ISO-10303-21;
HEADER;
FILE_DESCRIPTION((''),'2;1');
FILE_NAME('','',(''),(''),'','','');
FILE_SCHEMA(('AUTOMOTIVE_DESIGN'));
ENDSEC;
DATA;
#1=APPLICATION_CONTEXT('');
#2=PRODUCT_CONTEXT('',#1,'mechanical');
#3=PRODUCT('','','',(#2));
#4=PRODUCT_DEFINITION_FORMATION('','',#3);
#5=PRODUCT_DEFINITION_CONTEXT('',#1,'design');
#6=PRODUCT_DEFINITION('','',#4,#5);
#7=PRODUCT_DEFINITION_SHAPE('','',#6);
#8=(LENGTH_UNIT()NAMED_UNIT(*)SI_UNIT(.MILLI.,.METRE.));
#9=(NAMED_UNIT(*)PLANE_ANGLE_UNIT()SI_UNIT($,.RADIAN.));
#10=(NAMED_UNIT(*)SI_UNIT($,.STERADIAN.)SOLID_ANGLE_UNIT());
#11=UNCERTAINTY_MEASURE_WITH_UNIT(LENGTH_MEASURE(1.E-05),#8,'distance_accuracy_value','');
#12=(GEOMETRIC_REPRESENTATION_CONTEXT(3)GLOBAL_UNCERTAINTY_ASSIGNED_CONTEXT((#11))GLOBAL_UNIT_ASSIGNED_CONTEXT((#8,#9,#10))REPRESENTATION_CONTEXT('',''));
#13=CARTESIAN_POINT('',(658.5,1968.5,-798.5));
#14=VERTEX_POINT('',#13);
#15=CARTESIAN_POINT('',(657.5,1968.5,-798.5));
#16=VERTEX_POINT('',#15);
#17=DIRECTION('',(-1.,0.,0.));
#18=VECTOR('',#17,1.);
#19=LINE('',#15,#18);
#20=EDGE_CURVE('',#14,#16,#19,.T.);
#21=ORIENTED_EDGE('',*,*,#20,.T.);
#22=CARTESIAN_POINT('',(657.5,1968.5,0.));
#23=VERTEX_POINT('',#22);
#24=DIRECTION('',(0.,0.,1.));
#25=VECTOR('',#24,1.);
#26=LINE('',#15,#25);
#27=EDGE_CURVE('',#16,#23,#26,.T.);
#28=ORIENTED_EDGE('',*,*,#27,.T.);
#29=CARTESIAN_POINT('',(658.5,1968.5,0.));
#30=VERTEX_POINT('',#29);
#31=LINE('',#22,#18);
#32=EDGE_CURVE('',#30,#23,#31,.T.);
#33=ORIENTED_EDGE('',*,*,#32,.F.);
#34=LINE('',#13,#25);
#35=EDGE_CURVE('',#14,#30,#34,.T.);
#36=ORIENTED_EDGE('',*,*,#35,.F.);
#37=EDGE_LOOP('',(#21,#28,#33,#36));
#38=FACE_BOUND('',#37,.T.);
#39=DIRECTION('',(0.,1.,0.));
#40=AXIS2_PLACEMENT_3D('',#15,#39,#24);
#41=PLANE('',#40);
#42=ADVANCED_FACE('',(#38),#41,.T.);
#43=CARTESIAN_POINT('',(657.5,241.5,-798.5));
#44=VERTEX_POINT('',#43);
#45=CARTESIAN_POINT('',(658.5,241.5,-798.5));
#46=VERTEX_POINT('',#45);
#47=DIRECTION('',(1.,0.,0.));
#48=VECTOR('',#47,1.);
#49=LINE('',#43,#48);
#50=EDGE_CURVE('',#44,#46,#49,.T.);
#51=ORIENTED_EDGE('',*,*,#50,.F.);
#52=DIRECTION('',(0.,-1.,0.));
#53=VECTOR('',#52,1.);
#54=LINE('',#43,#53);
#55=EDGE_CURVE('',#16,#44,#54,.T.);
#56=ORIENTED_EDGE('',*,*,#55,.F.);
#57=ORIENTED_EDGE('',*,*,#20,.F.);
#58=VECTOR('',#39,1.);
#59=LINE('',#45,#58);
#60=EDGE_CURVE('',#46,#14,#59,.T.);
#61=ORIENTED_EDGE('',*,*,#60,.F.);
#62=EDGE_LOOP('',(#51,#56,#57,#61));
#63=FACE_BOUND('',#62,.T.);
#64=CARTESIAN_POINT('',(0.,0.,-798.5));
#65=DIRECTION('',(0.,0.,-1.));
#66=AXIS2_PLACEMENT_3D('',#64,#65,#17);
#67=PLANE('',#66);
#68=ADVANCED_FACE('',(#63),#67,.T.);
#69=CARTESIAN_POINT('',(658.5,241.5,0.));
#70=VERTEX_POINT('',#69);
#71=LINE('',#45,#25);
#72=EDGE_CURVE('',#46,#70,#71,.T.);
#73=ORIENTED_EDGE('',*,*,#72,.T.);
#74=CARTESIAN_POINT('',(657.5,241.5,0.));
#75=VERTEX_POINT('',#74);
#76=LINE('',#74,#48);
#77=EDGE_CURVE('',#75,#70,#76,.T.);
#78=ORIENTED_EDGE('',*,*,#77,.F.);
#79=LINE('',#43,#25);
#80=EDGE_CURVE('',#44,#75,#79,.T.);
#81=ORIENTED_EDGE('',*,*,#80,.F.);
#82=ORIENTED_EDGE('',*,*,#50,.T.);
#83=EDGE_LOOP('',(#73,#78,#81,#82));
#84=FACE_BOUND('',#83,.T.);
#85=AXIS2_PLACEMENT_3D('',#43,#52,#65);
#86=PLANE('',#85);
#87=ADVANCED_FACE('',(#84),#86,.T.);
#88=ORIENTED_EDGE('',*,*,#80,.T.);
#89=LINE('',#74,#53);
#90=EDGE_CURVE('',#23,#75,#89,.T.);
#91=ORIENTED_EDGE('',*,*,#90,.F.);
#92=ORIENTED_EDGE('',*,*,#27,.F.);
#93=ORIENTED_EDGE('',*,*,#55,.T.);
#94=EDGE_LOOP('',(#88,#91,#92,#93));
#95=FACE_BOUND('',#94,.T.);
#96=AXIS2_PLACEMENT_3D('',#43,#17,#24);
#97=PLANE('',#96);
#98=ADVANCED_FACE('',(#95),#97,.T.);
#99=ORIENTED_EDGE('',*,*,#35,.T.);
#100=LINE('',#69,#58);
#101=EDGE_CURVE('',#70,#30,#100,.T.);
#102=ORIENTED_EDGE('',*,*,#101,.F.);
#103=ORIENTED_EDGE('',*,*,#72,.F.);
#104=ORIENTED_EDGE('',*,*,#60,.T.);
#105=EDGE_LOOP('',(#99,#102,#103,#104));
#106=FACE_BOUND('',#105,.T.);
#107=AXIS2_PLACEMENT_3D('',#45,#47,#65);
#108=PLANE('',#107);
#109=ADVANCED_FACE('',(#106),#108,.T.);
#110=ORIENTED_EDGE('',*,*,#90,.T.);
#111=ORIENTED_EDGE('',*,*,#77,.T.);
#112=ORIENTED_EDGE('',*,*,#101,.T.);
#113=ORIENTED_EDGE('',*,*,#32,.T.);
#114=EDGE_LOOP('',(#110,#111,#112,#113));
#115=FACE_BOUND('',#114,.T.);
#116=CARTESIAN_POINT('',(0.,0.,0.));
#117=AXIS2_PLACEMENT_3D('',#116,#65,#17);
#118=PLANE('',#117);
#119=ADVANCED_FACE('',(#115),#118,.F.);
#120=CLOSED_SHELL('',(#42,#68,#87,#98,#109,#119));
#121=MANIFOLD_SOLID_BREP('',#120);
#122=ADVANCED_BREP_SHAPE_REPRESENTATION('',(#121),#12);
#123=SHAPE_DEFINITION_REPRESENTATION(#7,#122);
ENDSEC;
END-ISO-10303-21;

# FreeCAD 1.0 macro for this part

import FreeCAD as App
import Part
import Sketcher

V = App.Vector
Q = App.Units.Quantity


def add_polygon(sketch, points):
    """Adds a closed chain of lines whose ends are joined by coincident constraints."""
    first, n = sketch.GeometryCount, len(points)
    for a, b in zip(points, points[1:] + points[:1]):
        sketch.addGeometry(Part.LineSegment(App.Vector(*a, 0), App.Vector(*b, 0)), False)
    for i in range(n):
        sketch.addConstraint(Sketcher.Constraint("Coincident", first + i, 2, first + (i + 1) % n, 1))

doc = App.newDocument("Part")
params = doc.addObject("Spreadsheet::Sheet", "Params")
for row, (alias, value) in enumerate([
    ("sketch1_width", "1 mm"),
    ("sketch1_height", "1727 mm"),
    ("pad1_length", "798.5 mm"),
], start=1):
    params.set(f"A{row}", alias)
    params.set(f"B{row}", "=" + value)
    params.setAlias(f"B{row}", alias)

body = doc.addObject("PartDesign::Body", "Body")

sketch1 = body.newObject("Sketcher::SketchObject", "Sketch")
sketch1.AttachmentSupport = (doc.getObject("XY_Plane"), [""])
sketch1.MapMode = "FlatFace"
add_polygon(sketch1, [(657.5, 1968.5), (657.5, 241.5), (658.5, 241.5), (658.5, 1968.5)])
sketch1.addConstraint(Sketcher.Constraint("Vertical", 0))
sketch1.addConstraint(Sketcher.Constraint("Horizontal", 1))
sketch1.addConstraint(Sketcher.Constraint("Vertical", 2))
sketch1.addConstraint(Sketcher.Constraint("Horizontal", 3))
sketch1.addConstraint(Sketcher.Constraint("DistanceX", 1, 1, 1, 2, Q("1 mm")))
sketch1.addConstraint(Sketcher.Constraint("DistanceY", 0, 2, 0, 1, Q("1727 mm")))
sketch1.addConstraint(Sketcher.Constraint("DistanceX", -1, 1, 0, 2, Q("657.5 mm")))
sketch1.addConstraint(Sketcher.Constraint("DistanceY", -1, 1, 0, 2, Q("241.5 mm")))
sketch1.setExpression("Constraints[8]", "Params.sketch1_width")
sketch1.setExpression("Constraints[9]", "Params.sketch1_height")
pad1 = body.newObject("PartDesign::Pad", "Pad")
pad1.Profile = sketch1
pad1.setExpression("Length", "Params.pad1_length")
pad1.Reversed = True

doc.recompute()
